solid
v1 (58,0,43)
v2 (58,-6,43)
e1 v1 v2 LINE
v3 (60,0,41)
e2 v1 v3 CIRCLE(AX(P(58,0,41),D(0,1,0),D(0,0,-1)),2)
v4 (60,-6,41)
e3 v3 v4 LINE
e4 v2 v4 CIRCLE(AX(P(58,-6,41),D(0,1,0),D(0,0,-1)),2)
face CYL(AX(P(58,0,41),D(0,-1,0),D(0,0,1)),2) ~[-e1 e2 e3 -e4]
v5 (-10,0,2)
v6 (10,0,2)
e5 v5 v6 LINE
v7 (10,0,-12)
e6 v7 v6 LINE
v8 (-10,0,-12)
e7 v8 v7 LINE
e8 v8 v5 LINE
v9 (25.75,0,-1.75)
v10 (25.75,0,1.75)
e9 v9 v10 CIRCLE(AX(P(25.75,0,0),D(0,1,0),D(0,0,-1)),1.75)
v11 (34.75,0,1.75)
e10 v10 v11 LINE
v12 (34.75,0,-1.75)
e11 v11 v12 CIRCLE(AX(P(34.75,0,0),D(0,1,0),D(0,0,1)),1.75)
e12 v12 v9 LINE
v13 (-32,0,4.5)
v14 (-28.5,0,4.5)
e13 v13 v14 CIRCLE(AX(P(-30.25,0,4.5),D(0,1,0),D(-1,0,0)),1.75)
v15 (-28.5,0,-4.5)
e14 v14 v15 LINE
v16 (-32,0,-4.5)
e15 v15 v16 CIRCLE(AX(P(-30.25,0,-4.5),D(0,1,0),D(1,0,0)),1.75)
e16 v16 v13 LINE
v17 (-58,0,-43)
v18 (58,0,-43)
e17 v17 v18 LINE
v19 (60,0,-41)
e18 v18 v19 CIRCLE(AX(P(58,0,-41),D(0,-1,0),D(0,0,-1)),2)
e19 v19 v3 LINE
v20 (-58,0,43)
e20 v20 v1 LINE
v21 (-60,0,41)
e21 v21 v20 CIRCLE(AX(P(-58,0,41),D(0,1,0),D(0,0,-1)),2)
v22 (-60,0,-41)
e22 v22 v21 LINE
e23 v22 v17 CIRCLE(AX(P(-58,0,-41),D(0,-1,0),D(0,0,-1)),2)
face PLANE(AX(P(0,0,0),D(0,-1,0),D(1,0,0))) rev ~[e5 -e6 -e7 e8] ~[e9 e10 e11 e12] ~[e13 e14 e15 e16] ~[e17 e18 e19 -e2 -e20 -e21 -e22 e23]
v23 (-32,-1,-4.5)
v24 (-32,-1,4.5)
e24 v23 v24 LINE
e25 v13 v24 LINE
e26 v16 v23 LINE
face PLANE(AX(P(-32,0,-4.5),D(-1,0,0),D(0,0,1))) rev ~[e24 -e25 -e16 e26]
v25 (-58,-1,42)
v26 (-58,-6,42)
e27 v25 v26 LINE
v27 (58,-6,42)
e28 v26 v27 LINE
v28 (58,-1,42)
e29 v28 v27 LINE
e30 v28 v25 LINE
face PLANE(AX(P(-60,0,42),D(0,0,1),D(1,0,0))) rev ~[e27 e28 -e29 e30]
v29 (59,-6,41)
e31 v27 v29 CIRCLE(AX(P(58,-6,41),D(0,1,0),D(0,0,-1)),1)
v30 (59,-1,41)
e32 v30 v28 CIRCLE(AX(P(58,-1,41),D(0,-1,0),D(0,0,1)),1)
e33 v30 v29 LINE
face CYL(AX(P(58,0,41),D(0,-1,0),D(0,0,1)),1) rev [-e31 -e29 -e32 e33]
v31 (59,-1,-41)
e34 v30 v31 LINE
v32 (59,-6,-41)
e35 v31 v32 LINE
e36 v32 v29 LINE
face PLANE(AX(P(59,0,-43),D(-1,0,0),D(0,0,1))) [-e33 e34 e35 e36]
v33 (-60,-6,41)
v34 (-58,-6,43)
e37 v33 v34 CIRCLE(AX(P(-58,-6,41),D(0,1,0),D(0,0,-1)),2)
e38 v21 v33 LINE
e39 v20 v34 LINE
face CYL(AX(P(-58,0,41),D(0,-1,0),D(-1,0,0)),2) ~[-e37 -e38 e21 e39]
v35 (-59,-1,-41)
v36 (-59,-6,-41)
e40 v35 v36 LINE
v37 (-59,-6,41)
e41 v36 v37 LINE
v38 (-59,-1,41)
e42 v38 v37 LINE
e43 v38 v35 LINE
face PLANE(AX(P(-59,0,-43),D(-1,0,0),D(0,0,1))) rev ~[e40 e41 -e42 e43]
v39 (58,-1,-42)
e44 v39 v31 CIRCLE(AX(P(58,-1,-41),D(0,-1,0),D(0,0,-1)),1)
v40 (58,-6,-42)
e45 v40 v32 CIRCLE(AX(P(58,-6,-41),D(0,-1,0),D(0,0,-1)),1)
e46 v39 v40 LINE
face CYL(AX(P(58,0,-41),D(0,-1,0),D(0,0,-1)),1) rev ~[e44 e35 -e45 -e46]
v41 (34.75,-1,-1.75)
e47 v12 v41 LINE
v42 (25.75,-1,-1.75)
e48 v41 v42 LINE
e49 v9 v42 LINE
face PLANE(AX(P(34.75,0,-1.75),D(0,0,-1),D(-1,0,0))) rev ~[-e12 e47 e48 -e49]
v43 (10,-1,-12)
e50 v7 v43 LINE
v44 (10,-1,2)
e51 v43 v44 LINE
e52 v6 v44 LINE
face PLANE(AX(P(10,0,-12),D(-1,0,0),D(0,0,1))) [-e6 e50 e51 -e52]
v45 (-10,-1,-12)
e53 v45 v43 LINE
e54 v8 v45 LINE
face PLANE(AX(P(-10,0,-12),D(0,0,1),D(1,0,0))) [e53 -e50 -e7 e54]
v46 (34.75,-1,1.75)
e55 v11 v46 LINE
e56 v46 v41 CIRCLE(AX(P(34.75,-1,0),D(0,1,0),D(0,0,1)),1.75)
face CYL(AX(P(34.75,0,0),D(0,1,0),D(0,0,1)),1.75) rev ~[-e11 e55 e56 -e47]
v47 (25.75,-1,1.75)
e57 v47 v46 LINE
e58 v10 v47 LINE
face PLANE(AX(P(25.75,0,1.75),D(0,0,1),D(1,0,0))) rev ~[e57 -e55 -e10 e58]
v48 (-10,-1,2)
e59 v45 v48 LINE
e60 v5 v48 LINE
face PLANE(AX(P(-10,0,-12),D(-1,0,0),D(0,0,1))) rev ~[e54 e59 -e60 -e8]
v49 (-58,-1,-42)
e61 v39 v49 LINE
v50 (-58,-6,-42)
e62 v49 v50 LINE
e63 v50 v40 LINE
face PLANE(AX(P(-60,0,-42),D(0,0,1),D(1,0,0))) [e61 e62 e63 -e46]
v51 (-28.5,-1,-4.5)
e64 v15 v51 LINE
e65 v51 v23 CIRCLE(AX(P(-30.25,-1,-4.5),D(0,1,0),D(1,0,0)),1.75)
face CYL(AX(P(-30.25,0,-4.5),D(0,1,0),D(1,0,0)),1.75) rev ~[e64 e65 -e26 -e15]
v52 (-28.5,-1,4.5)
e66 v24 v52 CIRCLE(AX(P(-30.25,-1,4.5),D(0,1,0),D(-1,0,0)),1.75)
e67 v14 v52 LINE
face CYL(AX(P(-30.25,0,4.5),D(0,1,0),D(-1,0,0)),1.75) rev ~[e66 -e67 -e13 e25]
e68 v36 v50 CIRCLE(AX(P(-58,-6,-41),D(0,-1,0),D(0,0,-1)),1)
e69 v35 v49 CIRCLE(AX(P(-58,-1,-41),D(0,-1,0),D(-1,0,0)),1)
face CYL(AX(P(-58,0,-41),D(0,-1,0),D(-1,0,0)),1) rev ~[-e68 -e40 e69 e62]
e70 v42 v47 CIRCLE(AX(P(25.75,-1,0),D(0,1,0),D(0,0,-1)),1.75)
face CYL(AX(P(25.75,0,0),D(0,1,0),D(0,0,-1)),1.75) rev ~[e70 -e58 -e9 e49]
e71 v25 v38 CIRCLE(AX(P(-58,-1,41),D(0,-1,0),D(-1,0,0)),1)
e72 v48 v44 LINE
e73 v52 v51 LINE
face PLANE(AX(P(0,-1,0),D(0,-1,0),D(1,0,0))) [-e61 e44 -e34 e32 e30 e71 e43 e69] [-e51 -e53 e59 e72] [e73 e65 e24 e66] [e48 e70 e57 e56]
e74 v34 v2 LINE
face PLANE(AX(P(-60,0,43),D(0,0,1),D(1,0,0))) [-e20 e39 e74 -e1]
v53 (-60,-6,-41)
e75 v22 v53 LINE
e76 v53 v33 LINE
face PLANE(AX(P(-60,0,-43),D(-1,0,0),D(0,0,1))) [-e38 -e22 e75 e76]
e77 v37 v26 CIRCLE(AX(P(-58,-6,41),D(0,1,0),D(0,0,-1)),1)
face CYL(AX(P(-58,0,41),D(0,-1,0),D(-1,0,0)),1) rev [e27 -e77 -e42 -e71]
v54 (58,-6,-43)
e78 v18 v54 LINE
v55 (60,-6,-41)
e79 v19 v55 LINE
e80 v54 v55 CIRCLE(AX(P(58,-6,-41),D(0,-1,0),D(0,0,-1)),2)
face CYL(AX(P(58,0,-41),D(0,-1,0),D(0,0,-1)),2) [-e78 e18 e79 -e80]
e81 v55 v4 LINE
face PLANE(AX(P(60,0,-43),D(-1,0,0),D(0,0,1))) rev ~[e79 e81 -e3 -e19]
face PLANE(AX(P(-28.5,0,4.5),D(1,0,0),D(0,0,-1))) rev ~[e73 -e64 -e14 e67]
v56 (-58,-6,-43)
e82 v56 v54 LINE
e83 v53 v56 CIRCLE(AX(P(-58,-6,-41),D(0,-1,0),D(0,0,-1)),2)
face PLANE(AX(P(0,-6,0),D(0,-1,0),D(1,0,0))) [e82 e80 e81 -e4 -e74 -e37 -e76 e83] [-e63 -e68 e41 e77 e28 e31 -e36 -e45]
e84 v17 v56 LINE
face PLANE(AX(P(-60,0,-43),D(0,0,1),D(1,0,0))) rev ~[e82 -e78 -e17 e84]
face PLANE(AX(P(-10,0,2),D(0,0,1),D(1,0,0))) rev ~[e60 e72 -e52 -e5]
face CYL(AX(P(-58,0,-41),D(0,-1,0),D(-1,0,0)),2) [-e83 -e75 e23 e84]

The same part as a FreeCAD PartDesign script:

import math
import FreeCAD as App
import Part
import Sketcher


def edges_at(feature, points):
    """Names of the edges that pass closest to the given points."""
    edges = feature.Shape.Edges
    near = lambda p: min(range(len(edges)), key=lambda i: edges[i].distToShape(Part.Vertex(*p))[0])
    return sorted({f"Edge{near(p) + 1}" for p in points})


def faces_at(feature, points):
    """Names of the faces that lie closest to the given points."""
    faces = feature.Shape.Faces
    near = lambda p: min(range(len(faces)), key=lambda i: faces[i].distToShape(Part.Vertex(*p))[0])
    return sorted({f"Face{near(p) + 1}" for p in points})

doc = App.newDocument("Part")
body = doc.addObject("PartDesign::Body", "Body")

sketch1 = doc.addObject("Sketcher::SketchObject", "Sketch")
body.addObject(sketch1)
sketch1.AttachmentSupport = (doc.XZ_Plane, [""])
sketch1.MapMode = "FlatFace"
sketch1.addGeometry(Part.LineSegment(App.Vector(-60, 43, 0), App.Vector(-60, -43, 0)), False)
sketch1.addGeometry(Part.LineSegment(App.Vector(-60, -43, 0), App.Vector(60, -43, 0)), False)
sketch1.addGeometry(Part.LineSegment(App.Vector(60, -43, 0), App.Vector(60, 43, 0)), False)
sketch1.addGeometry(Part.LineSegment(App.Vector(60, 43, 0), App.Vector(-60, 43, 0)), False)
sketch1.addGeometry(Part.LineSegment(App.Vector(10, -12, 0), App.Vector(-10, -12, 0)), False)
sketch1.addGeometry(Part.LineSegment(App.Vector(-10, -12, 0), App.Vector(-10, 2, 0)), False)
sketch1.addGeometry(Part.LineSegment(App.Vector(-10, 2, 0), App.Vector(10, 2, 0)), False)
sketch1.addGeometry(Part.LineSegment(App.Vector(10, 2, 0), App.Vector(10, -12, 0)), False)
sketch1.addGeometry(Part.ArcOfCircle(Part.Circle(App.Vector(-30.2, 4.5, 0), App.Vector(0, 0, 1), 1.8), math.radians(0), math.radians(180)), False)
sketch1.addGeometry(Part.LineSegment(App.Vector(-28.5, 4.5, 0), App.Vector(-28.5, -4.5, 0)), False)
sketch1.addGeometry(Part.ArcOfCircle(Part.Circle(App.Vector(-30.2, -4.5, 0), App.Vector(0, 0, 1), 1.8), math.radians(180), math.radians(360)), False)
sketch1.addGeometry(Part.LineSegment(App.Vector(-32, -4.5, 0), App.Vector(-32, 4.5, 0)), False)
sketch1.addGeometry(Part.ArcOfCircle(Part.Circle(App.Vector(34.8, 0, 0), App.Vector(0, 0, 1), 1.8), math.radians(-90), math.radians(90)), False)
sketch1.addGeometry(Part.LineSegment(App.Vector(34.8, -1.8, 0), App.Vector(25.8, -1.8, 0)), False)
sketch1.addGeometry(Part.ArcOfCircle(Part.Circle(App.Vector(25.8, 0, 0), App.Vector(0, 0, 1), 1.8), math.radians(90), math.radians(270)), False)
sketch1.addGeometry(Part.LineSegment(App.Vector(25.8, 1.8, 0), App.Vector(34.8, 1.8, 0)), False)
sketch1.addConstraint(Sketcher.Constraint("Coincident", 0, 2, 1, 1))
sketch1.addConstraint(Sketcher.Constraint("Coincident", 1, 2, 2, 1))
sketch1.addConstraint(Sketcher.Constraint("Coincident", 2, 2, 3, 1))
sketch1.addConstraint(Sketcher.Constraint("Coincident", 3, 2, 0, 1))
sketch1.addConstraint(Sketcher.Constraint("Coincident", 4, 2, 5, 1))
sketch1.addConstraint(Sketcher.Constraint("Coincident", 5, 2, 6, 1))
sketch1.addConstraint(Sketcher.Constraint("Coincident", 6, 2, 7, 1))
sketch1.addConstraint(Sketcher.Constraint("Coincident", 7, 2, 4, 1))
sketch1.addConstraint(Sketcher.Constraint("Tangent", 8, 1, 9, 1))
sketch1.addConstraint(Sketcher.Constraint("Tangent", 9, 2, 10, 2))
sketch1.addConstraint(Sketcher.Constraint("Tangent", 10, 1, 11, 1))
sketch1.addConstraint(Sketcher.Constraint("Tangent", 11, 2, 8, 2))
sketch1.addConstraint(Sketcher.Constraint("Tangent", 12, 1, 13, 1))
sketch1.addConstraint(Sketcher.Constraint("Tangent", 13, 2, 14, 2))
sketch1.addConstraint(Sketcher.Constraint("Tangent", 14, 1, 15, 1))
sketch1.addConstraint(Sketcher.Constraint("Tangent", 15, 2, 12, 2))
sketch1.addConstraint(Sketcher.Constraint("Vertical", 0))
sketch1.addConstraint(Sketcher.Constraint("Horizontal", 1))
sketch1.addConstraint(Sketcher.Constraint("Vertical", 2))
sketch1.addConstraint(Sketcher.Constraint("Horizontal", 3))
sketch1.addConstraint(Sketcher.Constraint("Horizontal", 4))
sketch1.addConstraint(Sketcher.Constraint("Vertical", 5))
sketch1.addConstraint(Sketcher.Constraint("Horizontal", 6))
sketch1.addConstraint(Sketcher.Constraint("Vertical", 7))
sketch1.addConstraint(Sketcher.Constraint("Vertical", 9))
sketch1.addConstraint(Sketcher.Constraint("Vertical", 11))
sketch1.addConstraint(Sketcher.Constraint("Horizontal", 13))
sketch1.addConstraint(Sketcher.Constraint("Horizontal", 15))
sketch1.addConstraint(Sketcher.Constraint("Equal", 10, 12))
sketch1.addConstraint(Sketcher.Constraint("Symmetric", 0, 2, 2, 2, -1, 1))
sketch1.addConstraint(Sketcher.Constraint("PointOnObject", 12, 3, -1))
sketch1.addConstraint(Sketcher.Constraint("Equal", 15, 9))
sketch1.addConstraint(Sketcher.Constraint("DistanceX", 1, 1, 1, 2, 120.0))
sketch1.addConstraint(Sketcher.Constraint("DistanceX", 4, 2, 4, 1, 20.0))
sketch1.addConstraint(Sketcher.Constraint("DistanceX", 13, 2, 13, 1, 9.0))
sketch1.addConstraint(Sketcher.Constraint("DistanceY", 0, 2, 0, 1, 86.0))
sketch1.addConstraint(Sketcher.Constraint("DistanceY", 5, 1, 5, 2, 14.0))
sketch1.addConstraint(Sketcher.Constraint("Radius", 8, 1.75))
sketch1.addConstraint(Sketcher.Constraint("DistanceX", 4, 2, -1, 1, 10.0))
sketch1.addConstraint(Sketcher.Constraint("DistanceY", 4, 2, -1, 1, 12.0))
sketch1.addConstraint(Sketcher.Constraint("DistanceX", 10, 1, -1, 1, 32.0))
sketch1.addConstraint(Sketcher.Constraint("DistanceX", 8, 3, 12, 3, 65.0))
sketch1.addConstraint(Sketcher.Constraint("DistanceY", -1, 1, 8, 3, 4.5))
pad1 = doc.addObject("PartDesign::Pad", "Pad")
body.addObject(pad1)
pad1.Profile = sketch1
pad1.Length = 6
doc.recompute()

fillet = doc.addObject("PartDesign::Fillet", "Fillet")
body.addObject(fillet)
fillet.Base = (pad1, edges_at(pad1, [
    (-60, -3, -43),
    (-60, -3, 43),
    (60, -3, 43),
    (60, -3, -43),
]))
fillet.Radius = 2
doc.recompute()

thickness = doc.addObject("PartDesign::Thickness", "Thickness")
body.addObject(thickness)
thickness.Base = (fillet, faces_at(fillet, [
    (-28.5, -3, 0),
    (-30.25, -3, 6.25),
    (-32, -3, 0),
    (-30.25, -3, -6.25),
    (10, -3, -5),
    (0, -3, 2),
    (-24, -6, -17.2),
    (0, -3, -12),
    (-10, -3, -5),
    (30.25, -3, 1.75),
    (36.5, -3, 0),
    (24, -3, 0),
    (30.25, -3, -1.75),
]))
thickness.Value = 1
thickness.Reversed = True
thickness.Join = "Arc"

doc.recompute()
